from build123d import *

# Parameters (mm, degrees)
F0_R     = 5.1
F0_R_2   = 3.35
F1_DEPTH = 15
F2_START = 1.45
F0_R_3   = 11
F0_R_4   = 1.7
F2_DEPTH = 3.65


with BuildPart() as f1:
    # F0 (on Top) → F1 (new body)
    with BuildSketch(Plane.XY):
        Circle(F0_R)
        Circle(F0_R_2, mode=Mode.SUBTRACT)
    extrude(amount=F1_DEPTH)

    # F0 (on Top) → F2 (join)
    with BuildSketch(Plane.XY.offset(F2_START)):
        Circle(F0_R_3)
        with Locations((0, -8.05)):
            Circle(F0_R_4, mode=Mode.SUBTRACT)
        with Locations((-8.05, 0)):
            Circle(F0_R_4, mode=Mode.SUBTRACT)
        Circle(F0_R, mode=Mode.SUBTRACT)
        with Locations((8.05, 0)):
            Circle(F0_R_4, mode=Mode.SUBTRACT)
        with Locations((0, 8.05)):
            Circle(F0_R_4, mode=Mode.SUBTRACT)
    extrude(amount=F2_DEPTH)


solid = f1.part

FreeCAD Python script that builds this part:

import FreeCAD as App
import Part
import Sketcher
Q = App.Units.Quantity

doc = App.newDocument("Part")
body = doc.addObject("PartDesign::Body", "Body")

# Sketch on XY plane
sketch1 = body.newObject("Sketcher::SketchObject", "Sketch")
sketch1.AttachmentSupport = (doc.getObject("XY_Plane"), [""])
sketch1.MapMode = "FlatFace"
sketch1.addGeometry(Part.Circle(App.Vector(0, 0, 0), App.Vector(0, 0, 1), 5.1), False)
sketch1.addGeometry(Part.Circle(App.Vector(0, 0, 0), App.Vector(0, 0, 1), 3.35), False)
sketch1.addConstraint(Sketcher.Constraint("Coincident", 0, 3, -1, 1))
sketch1.addConstraint(Sketcher.Constraint("Coincident", 1, 3, -1, 1))
sketch1.addConstraint(Sketcher.Constraint("Diameter", 0, Q("10.2 mm")))
sketch1.addConstraint(Sketcher.Constraint("Diameter", 1, Q("6.7 mm")))
pad1 = body.newObject("PartDesign::Pad", "Pad")
pad1.Profile = sketch1
pad1.Length = 15

# Sketch on XY plane
sketch2 = body.newObject("Sketcher::SketchObject", "Sketch001")
sketch2.AttachmentSupport = (doc.getObject("XY_Plane"), [""])
sketch2.MapMode = "FlatFace"
sketch2.AttachmentOffset = App.Placement(App.Vector(0, 0, 1.45), App.Rotation())
sketch2.addGeometry(Part.Circle(App.Vector(0, 0, 0), App.Vector(0, 0, 1), 11), False)
sketch2.addGeometry(Part.Circle(App.Vector(0, -8.05, 0), App.Vector(0, 0, 1), 1.7), False)
sketch2.addGeometry(Part.Circle(App.Vector(-8.05, 0, 0), App.Vector(0, 0, 1), 1.7), False)
sketch2.addGeometry(Part.Circle(App.Vector(0, 0, 0), App.Vector(0, 0, 1), 5.1), False)
sketch2.addGeometry(Part.Circle(App.Vector(8.05, 0, 0), App.Vector(0, 0, 1), 1.7), False)
sketch2.addGeometry(Part.Circle(App.Vector(0, 8.05, 0), App.Vector(0, 0, 1), 1.7), False)
sketch2.addConstraint(Sketcher.Constraint("Coincident", 0, 3, -1, 1))
sketch2.addConstraint(Sketcher.Constraint("Coincident", 3, 3, -1, 1))
sketch2.addConstraint(Sketcher.Constraint("Equal", 1, 2))
sketch2.addConstraint(Sketcher.Constraint("Equal", 2, 4))
sketch2.addConstraint(Sketcher.Constraint("Equal", 4, 5))
sketch2.addConstraint(Sketcher.Constraint("Symmetric", 2, 3, 4, 3, -1, 1))
sketch2.addConstraint(Sketcher.Constraint("Symmetric", 1, 3, 5, 3, -1, 1))
sketch2.addConstraint(Sketcher.Constraint("PointOnObject", 1, 3, -2))
sketch2.addConstraint(Sketcher.Constraint("PointOnObject", 2, 3, -1))
sketch2.addConstraint(Sketcher.Constraint("Diameter", 0, Q("22 mm")))
sketch2.addConstraint(Sketcher.Constraint("Diameter", 1, Q("3.4 mm")))
sketch2.addConstraint(Sketcher.Constraint("Diameter", 3, Q("10.2 mm")))
sketch2.addConstraint(Sketcher.Constraint("DistanceX", 2, 3, 4, 3, Q("16.1 mm")))
sketch2.addConstraint(Sketcher.Constraint("DistanceY", 1, 3, 5, 3, Q("16.1 mm")))
pad2 = body.newObject("PartDesign::Pad", "Pad001")
pad2.Profile = sketch2
pad2.Length = 3.65

doc.recompute()
